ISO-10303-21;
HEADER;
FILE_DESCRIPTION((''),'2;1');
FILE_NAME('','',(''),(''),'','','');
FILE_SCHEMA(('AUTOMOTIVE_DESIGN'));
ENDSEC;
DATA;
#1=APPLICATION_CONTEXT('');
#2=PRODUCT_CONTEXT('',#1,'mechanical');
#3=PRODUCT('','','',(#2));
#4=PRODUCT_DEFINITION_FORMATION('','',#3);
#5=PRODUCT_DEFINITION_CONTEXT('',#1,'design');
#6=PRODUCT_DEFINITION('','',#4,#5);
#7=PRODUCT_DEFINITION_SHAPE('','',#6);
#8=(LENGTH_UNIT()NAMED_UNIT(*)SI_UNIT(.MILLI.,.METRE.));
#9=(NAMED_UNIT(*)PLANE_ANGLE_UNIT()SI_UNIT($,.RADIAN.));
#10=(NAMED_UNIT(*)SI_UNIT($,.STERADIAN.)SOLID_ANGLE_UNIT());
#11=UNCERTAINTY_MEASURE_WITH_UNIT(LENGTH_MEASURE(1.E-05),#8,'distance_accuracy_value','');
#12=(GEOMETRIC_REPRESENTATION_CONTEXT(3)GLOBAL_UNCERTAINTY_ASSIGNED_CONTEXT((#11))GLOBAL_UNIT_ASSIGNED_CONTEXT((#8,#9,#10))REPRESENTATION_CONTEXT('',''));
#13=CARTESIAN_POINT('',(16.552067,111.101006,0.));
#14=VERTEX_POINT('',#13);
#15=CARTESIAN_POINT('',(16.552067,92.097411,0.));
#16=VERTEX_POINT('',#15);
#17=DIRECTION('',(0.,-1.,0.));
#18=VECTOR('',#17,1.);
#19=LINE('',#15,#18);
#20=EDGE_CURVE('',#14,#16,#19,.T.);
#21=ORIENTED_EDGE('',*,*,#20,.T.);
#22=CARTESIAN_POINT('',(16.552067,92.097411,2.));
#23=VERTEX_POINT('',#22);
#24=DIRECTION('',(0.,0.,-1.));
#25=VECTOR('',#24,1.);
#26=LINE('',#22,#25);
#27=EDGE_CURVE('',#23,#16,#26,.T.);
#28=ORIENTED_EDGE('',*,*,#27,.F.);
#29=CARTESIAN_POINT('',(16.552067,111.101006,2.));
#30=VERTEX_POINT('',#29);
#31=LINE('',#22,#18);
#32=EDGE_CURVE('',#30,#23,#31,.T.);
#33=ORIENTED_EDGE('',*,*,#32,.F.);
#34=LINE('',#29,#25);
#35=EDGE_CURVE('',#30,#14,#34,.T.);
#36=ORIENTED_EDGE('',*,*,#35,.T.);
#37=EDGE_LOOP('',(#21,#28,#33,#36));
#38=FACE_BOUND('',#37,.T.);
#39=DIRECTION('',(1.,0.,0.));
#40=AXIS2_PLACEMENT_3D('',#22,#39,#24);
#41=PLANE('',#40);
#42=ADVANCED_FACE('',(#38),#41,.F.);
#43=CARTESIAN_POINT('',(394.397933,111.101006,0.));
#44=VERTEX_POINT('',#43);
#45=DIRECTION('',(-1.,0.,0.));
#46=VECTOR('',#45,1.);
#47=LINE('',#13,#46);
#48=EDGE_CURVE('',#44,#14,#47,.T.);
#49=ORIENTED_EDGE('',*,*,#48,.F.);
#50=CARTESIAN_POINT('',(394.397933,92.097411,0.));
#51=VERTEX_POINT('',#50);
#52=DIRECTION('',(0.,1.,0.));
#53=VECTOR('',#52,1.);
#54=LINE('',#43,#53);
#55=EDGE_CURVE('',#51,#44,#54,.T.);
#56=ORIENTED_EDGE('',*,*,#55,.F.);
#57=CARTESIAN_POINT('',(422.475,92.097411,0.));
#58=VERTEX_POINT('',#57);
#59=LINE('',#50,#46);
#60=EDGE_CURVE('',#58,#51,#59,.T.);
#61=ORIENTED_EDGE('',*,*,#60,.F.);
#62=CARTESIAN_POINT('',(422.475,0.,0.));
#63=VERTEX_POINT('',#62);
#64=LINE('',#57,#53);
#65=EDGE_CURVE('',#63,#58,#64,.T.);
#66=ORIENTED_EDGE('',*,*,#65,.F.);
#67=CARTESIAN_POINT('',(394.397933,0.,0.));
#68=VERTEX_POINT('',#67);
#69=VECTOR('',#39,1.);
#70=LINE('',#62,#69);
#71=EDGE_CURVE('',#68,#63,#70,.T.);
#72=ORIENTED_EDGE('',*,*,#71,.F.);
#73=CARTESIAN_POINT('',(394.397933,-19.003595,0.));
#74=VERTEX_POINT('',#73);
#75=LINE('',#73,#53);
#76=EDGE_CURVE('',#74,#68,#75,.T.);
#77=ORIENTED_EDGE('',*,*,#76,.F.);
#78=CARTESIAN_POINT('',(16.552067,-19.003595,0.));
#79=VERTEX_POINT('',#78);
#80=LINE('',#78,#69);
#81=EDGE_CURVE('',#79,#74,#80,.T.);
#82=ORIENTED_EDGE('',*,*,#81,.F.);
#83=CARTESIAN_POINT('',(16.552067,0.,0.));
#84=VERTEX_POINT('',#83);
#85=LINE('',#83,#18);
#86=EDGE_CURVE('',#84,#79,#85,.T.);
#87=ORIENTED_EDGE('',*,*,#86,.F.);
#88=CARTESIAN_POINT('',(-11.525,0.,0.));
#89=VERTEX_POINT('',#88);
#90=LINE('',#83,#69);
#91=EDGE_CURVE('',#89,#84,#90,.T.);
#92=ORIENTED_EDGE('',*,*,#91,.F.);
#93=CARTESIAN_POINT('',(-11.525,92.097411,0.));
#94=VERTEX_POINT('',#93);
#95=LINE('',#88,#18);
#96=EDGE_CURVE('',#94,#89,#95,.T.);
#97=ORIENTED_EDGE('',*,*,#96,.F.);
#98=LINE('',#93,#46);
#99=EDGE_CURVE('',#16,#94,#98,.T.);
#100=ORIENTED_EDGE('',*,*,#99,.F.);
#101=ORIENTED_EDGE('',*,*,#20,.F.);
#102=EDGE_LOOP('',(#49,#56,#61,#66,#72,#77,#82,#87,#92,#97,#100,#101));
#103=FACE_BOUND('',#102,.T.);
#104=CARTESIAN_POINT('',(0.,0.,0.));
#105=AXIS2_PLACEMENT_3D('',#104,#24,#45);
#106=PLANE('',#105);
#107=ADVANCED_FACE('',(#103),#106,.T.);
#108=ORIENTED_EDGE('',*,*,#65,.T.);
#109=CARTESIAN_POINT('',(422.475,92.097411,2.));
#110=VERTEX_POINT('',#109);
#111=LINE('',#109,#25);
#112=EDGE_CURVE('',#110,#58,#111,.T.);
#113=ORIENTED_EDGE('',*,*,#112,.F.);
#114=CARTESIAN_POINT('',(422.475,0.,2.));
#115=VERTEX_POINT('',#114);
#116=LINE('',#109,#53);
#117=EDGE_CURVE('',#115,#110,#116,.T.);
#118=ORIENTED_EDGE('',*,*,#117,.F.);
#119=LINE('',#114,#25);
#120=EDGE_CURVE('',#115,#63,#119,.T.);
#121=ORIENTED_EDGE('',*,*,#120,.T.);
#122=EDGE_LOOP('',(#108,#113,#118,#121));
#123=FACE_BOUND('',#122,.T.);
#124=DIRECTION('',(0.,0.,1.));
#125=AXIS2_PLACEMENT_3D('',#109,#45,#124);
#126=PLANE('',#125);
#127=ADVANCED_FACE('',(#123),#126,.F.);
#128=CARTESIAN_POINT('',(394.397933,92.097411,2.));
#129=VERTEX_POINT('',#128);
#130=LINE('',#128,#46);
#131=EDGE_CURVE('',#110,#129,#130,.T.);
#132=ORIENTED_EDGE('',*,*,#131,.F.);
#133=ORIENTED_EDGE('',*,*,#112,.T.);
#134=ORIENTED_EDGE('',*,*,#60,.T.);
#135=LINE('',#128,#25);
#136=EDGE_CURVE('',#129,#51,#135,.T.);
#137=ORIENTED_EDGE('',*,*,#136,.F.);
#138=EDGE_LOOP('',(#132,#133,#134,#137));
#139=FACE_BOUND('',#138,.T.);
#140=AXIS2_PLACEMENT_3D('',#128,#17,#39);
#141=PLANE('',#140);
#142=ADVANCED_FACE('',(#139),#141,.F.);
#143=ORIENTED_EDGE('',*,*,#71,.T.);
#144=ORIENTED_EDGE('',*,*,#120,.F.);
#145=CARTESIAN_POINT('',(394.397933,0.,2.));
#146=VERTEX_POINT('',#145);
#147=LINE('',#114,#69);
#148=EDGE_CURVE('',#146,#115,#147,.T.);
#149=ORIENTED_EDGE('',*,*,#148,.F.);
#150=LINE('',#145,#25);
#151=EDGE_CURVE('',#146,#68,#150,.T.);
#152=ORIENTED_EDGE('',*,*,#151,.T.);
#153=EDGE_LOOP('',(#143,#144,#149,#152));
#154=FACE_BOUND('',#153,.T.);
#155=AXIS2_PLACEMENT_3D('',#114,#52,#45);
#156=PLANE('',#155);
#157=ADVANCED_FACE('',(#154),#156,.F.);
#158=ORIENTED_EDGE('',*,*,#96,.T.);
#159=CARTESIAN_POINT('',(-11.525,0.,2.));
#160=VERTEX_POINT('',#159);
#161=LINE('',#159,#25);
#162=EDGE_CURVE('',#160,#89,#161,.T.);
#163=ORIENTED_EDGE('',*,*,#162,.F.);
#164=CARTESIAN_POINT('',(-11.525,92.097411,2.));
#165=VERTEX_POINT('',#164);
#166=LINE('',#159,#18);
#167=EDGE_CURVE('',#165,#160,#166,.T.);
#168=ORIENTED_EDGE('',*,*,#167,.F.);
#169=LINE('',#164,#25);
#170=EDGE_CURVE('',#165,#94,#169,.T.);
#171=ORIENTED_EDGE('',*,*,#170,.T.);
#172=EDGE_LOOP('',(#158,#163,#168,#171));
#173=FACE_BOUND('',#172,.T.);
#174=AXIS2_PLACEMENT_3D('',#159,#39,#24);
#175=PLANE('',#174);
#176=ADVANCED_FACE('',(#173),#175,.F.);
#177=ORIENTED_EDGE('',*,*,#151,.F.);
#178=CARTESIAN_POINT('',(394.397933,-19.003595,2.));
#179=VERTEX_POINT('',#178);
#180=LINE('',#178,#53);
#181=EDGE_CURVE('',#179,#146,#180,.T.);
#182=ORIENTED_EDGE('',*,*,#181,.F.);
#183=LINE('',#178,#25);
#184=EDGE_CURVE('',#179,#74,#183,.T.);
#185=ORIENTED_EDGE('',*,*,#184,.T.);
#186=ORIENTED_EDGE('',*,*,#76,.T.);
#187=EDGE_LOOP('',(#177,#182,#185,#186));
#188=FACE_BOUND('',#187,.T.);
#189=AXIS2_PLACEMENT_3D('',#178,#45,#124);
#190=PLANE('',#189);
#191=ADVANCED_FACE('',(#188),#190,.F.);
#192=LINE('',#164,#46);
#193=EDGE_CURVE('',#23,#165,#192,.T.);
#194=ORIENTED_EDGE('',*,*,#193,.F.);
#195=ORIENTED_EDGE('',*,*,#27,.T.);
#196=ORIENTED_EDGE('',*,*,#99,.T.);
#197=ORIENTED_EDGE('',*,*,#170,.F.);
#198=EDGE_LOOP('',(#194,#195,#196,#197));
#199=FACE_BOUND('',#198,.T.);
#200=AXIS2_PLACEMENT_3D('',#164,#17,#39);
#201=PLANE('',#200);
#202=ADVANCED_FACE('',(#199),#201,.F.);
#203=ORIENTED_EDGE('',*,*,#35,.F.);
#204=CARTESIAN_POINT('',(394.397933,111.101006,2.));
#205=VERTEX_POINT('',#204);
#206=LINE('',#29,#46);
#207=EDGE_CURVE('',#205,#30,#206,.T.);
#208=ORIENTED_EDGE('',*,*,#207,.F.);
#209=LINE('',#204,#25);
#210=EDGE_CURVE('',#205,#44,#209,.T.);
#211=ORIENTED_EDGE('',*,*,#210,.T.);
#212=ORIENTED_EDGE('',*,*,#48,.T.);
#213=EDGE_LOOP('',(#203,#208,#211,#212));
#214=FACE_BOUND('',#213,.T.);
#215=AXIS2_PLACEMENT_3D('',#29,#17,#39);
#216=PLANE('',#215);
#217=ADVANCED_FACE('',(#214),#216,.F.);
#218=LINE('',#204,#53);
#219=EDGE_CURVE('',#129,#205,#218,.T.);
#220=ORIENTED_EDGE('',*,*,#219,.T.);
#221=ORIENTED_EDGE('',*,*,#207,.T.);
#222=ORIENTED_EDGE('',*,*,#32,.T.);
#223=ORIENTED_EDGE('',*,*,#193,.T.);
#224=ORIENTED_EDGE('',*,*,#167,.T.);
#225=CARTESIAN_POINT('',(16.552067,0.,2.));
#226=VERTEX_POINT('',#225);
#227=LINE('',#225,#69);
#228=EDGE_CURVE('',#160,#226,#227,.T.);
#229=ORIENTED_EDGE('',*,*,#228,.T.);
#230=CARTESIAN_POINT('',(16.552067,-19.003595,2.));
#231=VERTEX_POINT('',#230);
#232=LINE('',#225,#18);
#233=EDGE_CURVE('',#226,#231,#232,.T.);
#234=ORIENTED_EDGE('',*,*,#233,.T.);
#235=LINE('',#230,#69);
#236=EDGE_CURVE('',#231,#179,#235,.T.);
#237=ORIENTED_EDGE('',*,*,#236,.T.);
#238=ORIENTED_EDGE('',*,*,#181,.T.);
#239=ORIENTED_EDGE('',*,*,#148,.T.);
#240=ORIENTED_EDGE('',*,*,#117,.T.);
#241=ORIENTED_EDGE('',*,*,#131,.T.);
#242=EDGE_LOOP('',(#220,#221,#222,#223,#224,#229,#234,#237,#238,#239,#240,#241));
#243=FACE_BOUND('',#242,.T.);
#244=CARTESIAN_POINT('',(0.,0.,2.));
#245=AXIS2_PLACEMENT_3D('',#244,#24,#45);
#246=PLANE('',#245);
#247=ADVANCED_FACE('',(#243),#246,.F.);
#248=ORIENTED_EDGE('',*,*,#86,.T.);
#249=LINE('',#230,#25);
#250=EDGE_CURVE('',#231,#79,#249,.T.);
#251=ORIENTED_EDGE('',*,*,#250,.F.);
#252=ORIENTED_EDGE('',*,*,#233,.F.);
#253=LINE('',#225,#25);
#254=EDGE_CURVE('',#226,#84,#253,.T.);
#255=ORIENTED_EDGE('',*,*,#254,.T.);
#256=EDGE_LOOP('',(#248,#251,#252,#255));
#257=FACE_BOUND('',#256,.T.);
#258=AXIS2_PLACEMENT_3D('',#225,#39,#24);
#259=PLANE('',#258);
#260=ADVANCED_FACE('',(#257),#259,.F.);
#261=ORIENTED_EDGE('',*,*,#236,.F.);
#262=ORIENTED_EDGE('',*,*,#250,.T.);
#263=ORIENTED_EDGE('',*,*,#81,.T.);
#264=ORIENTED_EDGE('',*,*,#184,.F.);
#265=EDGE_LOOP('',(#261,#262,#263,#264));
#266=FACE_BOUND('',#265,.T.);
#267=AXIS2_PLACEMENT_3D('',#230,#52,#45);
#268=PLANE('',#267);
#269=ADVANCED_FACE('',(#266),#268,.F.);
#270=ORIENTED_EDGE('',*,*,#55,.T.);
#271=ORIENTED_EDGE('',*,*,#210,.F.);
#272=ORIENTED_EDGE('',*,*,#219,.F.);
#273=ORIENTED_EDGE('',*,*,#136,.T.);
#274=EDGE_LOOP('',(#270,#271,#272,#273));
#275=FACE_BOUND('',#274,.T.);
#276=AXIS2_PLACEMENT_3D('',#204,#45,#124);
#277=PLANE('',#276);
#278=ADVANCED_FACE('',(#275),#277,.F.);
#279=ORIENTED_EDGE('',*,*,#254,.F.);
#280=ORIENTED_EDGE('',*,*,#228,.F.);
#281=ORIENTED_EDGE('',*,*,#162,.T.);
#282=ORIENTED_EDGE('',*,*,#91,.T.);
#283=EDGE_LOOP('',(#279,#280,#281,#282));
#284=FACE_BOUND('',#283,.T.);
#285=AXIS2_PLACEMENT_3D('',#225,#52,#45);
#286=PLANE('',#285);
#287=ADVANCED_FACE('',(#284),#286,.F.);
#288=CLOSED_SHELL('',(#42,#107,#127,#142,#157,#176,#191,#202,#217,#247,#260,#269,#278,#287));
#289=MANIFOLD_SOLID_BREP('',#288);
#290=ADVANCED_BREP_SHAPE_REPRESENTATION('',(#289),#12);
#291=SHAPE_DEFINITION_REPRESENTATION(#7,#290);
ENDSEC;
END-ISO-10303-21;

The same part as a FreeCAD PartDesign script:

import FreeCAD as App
import Part
import Sketcher

V = App.Vector

doc = App.newDocument("Part")
body = doc.addObject("PartDesign::Body", "Body")

sketch1 = body.newObject("Sketcher::SketchObject", "Sketch")
sketch1.AttachmentSupport = (doc.getObject("XY_Plane"), [""])
sketch1.MapMode = "FlatFace"
sketch1.addGeometry([
    Part.LineSegment(V(16.552067, 92.097411, 0), V(-11.525, 92.097411, 0)),
    Part.LineSegment(V(-11.525, 92.097411, 0), V(-11.525, 0, 0)),
    Part.LineSegment(V(-11.525, 0, 0), V(16.552067, 0, 0)),
    Part.LineSegment(V(16.552067, 0, 0), V(16.552067, -19.003595, 0)),
    Part.LineSegment(V(16.552067, -19.003595, 0), V(394.397933, -19.003595, 0)),
    Part.LineSegment(V(394.397933, -19.003595, 0), V(394.397933, 0, 0)),
    Part.LineSegment(V(394.397933, 0, 0), V(422.475, 0, 0)),
    Part.LineSegment(V(422.475, 0, 0), V(422.475, 92.097411, 0)),
    Part.LineSegment(V(422.475, 92.097411, 0), V(394.397933, 92.097411, 0)),
    Part.LineSegment(V(394.397933, 92.097411, 0), V(394.397933, 111.101006, 0)),
    Part.LineSegment(V(394.397933, 111.101006, 0), V(16.552067, 111.101006, 0)),
    Part.LineSegment(V(16.552067, 111.101006, 0), V(16.552067, 92.097411, 0)),
], False)
sketch1.addConstraint([
    Sketcher.Constraint("Coincident", 0, 2, 1, 1),
    Sketcher.Constraint("Coincident", 1, 2, 2, 1),
    Sketcher.Constraint("Coincident", 2, 2, 3, 1),
    Sketcher.Constraint("Coincident", 3, 2, 4, 1),
    Sketcher.Constraint("Coincident", 4, 2, 5, 1),
    Sketcher.Constraint("Coincident", 5, 2, 6, 1),
    Sketcher.Constraint("Coincident", 6, 2, 7, 1),
    Sketcher.Constraint("Coincident", 7, 2, 8, 1),
    Sketcher.Constraint("Coincident", 8, 2, 9, 1),
    Sketcher.Constraint("Coincident", 9, 2, 10, 1),
    Sketcher.Constraint("Coincident", 10, 2, 11, 1),
    Sketcher.Constraint("Coincident", 11, 2, 0, 1),
    Sketcher.Constraint("Horizontal", 0),
    Sketcher.Constraint("Vertical", 1),
    Sketcher.Constraint("Horizontal", 2),
    Sketcher.Constraint("Vertical", 3),
    Sketcher.Constraint("Horizontal", 4),
    Sketcher.Constraint("Vertical", 5),
    Sketcher.Constraint("Horizontal", 6),
    Sketcher.Constraint("Vertical", 7),
    Sketcher.Constraint("Horizontal", 8),
    Sketcher.Constraint("Vertical", 9),
    Sketcher.Constraint("Horizontal", 10),
    Sketcher.Constraint("Vertical", 11),
    Sketcher.Constraint("PointOnObject", 1, 2, -1),
    Sketcher.Constraint("PointOnObject", 5, 2, -1),
    Sketcher.Constraint("Horizontal", 0, 2, 7, 2),
    Sketcher.Constraint("Vertical", 5, 2, 8, 2),
    Sketcher.Constraint("Vertical", 3, 2, 10, 2),
    Sketcher.Constraint("Equal", 2, 6),
    Sketcher.Constraint("Equal", 5, 9),
    Sketcher.Constraint("DistanceX", 1, 2, 6, 2, 434.0),
    Sketcher.Constraint("DistanceX", 0, 2, -1, 1, 11.525),
    Sketcher.Constraint("DistanceY", 1, 2, 1, 1, 92.097411),
    Sketcher.Constraint("DistanceY", 4, 2, 9, 2, 130.104601),
    Sketcher.Constraint("DistanceX", 0, 2, 0, 1, 28.077067),
])
pad1 = body.newObject("PartDesign::Pad", "Pad")
pad1.Profile = sketch1
pad1.Length = 2

doc.recompute()
